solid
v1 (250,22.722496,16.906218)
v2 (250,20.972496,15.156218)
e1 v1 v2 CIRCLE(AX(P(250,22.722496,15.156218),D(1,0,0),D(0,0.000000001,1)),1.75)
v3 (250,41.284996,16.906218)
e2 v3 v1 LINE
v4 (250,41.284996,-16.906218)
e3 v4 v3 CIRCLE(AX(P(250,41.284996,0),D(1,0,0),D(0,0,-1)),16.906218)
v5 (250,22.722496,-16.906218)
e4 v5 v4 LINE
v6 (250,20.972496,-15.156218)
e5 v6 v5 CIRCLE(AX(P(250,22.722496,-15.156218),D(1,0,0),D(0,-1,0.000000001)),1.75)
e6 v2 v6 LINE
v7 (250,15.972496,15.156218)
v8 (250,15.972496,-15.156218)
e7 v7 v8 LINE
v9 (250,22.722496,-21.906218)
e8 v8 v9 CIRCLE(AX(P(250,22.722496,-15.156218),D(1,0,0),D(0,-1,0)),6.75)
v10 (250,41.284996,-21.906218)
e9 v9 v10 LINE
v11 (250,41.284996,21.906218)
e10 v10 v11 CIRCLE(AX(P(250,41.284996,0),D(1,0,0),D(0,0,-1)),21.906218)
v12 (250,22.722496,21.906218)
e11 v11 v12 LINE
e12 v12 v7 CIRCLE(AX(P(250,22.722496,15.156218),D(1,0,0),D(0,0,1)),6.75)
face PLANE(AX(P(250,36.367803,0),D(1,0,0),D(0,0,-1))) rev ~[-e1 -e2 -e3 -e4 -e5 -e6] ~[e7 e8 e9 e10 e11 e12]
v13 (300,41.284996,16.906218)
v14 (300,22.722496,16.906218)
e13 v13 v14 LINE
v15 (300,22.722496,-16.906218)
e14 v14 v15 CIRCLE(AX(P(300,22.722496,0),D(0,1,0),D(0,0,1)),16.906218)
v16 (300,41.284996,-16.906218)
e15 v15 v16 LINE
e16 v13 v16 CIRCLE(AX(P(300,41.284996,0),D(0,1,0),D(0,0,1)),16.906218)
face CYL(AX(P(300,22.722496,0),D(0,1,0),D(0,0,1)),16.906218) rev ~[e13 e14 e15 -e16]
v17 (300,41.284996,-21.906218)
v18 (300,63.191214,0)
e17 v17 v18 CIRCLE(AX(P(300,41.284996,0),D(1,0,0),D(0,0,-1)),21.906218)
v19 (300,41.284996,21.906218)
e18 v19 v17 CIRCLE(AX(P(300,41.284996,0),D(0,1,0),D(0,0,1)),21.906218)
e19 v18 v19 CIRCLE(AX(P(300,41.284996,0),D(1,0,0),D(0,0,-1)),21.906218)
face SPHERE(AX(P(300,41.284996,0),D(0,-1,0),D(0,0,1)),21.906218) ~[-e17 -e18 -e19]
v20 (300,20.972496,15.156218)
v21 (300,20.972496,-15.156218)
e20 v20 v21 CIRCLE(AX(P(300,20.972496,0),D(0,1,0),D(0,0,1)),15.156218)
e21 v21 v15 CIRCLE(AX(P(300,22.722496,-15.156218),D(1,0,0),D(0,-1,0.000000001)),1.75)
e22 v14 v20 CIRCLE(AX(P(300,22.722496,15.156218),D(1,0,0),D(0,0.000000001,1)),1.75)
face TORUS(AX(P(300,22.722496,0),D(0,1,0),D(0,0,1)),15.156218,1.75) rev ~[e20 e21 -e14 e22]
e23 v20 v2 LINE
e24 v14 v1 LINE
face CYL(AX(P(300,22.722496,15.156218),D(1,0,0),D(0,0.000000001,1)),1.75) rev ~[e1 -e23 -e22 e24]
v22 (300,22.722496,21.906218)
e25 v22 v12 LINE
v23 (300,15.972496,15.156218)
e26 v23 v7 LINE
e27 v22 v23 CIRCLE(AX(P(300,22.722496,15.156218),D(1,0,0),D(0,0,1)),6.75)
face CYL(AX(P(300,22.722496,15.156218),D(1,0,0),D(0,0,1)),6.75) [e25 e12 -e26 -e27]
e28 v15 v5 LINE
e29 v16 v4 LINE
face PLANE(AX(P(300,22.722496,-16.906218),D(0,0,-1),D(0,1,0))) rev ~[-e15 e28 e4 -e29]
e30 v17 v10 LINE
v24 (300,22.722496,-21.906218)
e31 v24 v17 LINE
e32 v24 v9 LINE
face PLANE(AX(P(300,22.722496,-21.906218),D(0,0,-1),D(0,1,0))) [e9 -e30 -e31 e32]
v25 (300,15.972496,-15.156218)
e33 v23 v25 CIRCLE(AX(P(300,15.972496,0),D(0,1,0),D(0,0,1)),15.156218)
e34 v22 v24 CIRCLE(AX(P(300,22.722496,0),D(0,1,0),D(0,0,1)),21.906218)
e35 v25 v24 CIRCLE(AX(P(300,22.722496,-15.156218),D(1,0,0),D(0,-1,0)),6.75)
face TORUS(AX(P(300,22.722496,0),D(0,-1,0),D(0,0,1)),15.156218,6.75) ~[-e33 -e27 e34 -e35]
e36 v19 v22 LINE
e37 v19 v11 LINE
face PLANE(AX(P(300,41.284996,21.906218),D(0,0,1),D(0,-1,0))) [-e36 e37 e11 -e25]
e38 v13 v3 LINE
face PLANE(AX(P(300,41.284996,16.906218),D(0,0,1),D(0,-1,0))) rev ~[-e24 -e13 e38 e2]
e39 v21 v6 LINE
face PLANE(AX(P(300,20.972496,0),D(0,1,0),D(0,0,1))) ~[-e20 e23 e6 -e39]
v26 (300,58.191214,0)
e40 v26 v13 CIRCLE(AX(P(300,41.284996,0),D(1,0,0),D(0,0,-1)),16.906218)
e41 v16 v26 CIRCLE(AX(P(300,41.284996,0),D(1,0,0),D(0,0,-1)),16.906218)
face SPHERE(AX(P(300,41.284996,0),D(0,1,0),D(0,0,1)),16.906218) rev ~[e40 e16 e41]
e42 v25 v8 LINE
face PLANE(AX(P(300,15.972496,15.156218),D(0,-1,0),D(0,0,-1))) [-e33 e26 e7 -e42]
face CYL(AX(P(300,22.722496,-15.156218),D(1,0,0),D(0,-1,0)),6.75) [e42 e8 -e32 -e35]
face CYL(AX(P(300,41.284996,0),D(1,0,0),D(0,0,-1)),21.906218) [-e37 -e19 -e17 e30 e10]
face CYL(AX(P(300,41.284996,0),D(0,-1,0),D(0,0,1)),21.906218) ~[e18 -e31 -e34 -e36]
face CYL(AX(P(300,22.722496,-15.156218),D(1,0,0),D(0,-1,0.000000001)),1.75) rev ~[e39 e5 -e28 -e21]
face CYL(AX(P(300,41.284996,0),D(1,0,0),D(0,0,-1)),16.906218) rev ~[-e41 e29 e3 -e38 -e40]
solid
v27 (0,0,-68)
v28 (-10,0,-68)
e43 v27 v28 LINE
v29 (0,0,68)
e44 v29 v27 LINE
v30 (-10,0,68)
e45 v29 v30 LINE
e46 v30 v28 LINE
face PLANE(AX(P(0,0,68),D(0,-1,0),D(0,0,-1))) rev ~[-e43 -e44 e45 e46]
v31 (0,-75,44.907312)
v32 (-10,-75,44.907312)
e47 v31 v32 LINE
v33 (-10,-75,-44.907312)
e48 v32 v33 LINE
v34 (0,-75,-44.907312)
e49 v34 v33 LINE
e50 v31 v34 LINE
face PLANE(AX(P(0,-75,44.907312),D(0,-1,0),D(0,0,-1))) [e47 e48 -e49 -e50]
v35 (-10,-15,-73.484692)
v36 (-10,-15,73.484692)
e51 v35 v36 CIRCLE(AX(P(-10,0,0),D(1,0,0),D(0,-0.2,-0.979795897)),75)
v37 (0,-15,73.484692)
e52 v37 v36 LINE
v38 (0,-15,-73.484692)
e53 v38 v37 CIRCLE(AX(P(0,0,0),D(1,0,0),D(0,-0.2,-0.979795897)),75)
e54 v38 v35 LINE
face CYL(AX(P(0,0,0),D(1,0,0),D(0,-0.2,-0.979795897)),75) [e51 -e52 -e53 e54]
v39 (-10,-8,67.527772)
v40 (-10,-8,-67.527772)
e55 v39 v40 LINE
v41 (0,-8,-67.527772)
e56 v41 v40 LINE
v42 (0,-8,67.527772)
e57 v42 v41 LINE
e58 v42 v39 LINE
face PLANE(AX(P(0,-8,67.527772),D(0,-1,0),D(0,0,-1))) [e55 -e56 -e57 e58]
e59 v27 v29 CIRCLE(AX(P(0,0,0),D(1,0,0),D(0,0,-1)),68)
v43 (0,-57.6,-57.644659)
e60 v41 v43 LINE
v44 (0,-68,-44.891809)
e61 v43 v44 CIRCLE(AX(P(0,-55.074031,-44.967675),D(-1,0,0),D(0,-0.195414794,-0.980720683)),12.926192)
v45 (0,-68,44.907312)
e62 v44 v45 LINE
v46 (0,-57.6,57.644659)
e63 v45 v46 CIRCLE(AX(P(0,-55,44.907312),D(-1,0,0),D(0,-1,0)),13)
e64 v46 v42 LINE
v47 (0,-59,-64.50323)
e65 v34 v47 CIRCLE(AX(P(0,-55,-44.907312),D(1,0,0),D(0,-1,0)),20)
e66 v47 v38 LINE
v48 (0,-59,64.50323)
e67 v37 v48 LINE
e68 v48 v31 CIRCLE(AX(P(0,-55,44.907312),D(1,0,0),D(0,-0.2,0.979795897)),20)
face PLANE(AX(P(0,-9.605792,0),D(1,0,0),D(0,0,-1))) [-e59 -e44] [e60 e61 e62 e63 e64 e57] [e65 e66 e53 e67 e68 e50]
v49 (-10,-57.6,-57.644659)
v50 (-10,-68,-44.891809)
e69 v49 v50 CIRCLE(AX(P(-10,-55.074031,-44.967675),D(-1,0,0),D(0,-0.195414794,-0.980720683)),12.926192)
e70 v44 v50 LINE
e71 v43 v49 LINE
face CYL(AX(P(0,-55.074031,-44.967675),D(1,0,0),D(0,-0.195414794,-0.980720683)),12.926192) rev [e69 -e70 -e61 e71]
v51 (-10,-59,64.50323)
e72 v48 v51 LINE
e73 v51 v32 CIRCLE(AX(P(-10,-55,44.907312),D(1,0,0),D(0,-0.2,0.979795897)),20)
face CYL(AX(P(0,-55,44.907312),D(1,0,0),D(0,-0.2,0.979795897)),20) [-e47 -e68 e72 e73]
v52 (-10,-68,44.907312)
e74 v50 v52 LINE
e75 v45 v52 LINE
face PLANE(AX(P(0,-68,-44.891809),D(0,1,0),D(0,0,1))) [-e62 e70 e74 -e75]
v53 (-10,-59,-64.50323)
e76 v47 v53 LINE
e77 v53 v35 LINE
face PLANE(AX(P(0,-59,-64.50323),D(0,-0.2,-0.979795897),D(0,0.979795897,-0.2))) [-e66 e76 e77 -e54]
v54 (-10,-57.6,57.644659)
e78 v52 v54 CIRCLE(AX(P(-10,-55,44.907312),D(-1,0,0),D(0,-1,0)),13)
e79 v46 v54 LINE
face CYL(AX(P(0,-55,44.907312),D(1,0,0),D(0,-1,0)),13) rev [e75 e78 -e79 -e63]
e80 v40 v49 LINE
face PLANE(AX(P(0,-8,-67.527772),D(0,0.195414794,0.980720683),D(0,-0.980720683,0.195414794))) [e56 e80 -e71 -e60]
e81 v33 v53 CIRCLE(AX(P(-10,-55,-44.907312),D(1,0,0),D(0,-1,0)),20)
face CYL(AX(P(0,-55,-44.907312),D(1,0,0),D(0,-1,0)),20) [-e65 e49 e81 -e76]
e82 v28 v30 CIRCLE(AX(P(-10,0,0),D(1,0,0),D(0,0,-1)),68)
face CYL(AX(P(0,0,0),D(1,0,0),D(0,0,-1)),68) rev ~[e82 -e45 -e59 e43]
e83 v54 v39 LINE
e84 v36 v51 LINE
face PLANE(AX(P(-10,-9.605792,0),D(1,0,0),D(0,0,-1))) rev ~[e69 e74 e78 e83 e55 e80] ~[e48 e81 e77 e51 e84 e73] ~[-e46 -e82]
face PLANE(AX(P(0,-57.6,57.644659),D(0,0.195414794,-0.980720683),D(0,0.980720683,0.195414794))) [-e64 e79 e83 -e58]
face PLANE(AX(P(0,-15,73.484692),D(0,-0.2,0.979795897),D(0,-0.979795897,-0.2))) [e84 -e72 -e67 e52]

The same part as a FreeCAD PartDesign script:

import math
import FreeCAD as App
import Part
import Sketcher

doc = App.newDocument("Part")
body = doc.addObject("PartDesign::Body", "Body")

sketch1 = doc.addObject("Sketcher::SketchObject", "Sketch")
body.addObject(sketch1)
sketch1.AttachmentSupport = (doc.YZ_Plane, [""])
sketch1.MapMode = "FlatFace"
sketch1.addGeometry(Part.LineSegment(App.Vector(-15, 73, 0), App.Vector(-59, 65, 0)), False)
sketch1.addGeometry(Part.ArcOfCircle(Part.Circle(App.Vector(-55, 45, 0), App.Vector(0, 0, 1), 20), math.radians(102), math.radians(180)), False)
sketch1.addGeometry(Part.LineSegment(App.Vector(-75, 45, 0), App.Vector(-75, -45, 0)), False)
sketch1.addGeometry(Part.ArcOfCircle(Part.Circle(App.Vector(-55, -45, 0), App.Vector(0, 0, 1), 20), math.radians(180), math.radians(258)), False)
sketch1.addGeometry(Part.LineSegment(App.Vector(-59, -65, 0), App.Vector(-15, -73, 0)), False)
sketch1.addGeometry(Part.ArcOfCircle(Part.Circle(App.Vector(0, 0, 0), App.Vector(0, 0, 1), 75), math.radians(-102), math.radians(102)), False)
sketch1.addGeometry(Part.LineSegment(App.Vector(-58, 58, 0), App.Vector(-8, 68, 0)), False)
sketch1.addGeometry(Part.LineSegment(App.Vector(-8, 68, 0), App.Vector(-8, -68, 0)), False)
sketch1.addGeometry(Part.LineSegment(App.Vector(-8, -68, 0), App.Vector(-58, -58, 0)), False)
sketch1.addGeometry(Part.ArcOfCircle(Part.Circle(App.Vector(-55, -45, 0), App.Vector(0, 0, 1), 13), math.radians(180), math.radians(259)), False)
sketch1.addGeometry(Part.LineSegment(App.Vector(-68, -45, 0), App.Vector(-68, 45, 0)), False)
sketch1.addGeometry(Part.ArcOfCircle(Part.Circle(App.Vector(-55, 45, 0), App.Vector(0, 0, 1), 13), math.radians(102), math.radians(180)), False)
sketch1.addGeometry(Part.LineSegment(App.Vector(0, -68, 0), App.Vector(0, 68, 0)), False)
sketch1.addGeometry(Part.ArcOfCircle(Part.Circle(App.Vector(0, 0, 0), App.Vector(0, 0, 1), 68), math.radians(-90), math.radians(90)), False)
sketch1.addConstraint(Sketcher.Constraint("Tangent", 0, 2, 1, 1))
sketch1.addConstraint(Sketcher.Constraint("Tangent", 1, 2, 2, 1))
sketch1.addConstraint(Sketcher.Constraint("Tangent", 2, 2, 3, 1))
sketch1.addConstraint(Sketcher.Constraint("Tangent", 3, 2, 4, 1))
sketch1.addConstraint(Sketcher.Constraint("Tangent", 4, 2, 5, 1))
sketch1.addConstraint(Sketcher.Constraint("Tangent", 5, 2, 0, 1))
sketch1.addConstraint(Sketcher.Constraint("Coincident", 6, 2, 7, 1))
sketch1.addConstraint(Sketcher.Constraint("Coincident", 7, 2, 8, 1))
sketch1.addConstraint(Sketcher.Constraint("Tangent", 8, 2, 9, 2))
sketch1.addConstraint(Sketcher.Constraint("Coincident", 9, 1, 10, 1))
sketch1.addConstraint(Sketcher.Constraint("Tangent", 10, 2, 11, 2))
sketch1.addConstraint(Sketcher.Constraint("Coincident", 11, 1, 6, 1))
sketch1.addConstraint(Sketcher.Constraint("Coincident", 12, 1, 13, 1))
sketch1.addConstraint(Sketcher.Constraint("Coincident", 13, 2, 12, 2))
sketch1.addConstraint(Sketcher.Constraint("Vertical", 2))
sketch1.addConstraint(Sketcher.Constraint("Vertical", 7))
sketch1.addConstraint(Sketcher.Constraint("Vertical", 10))
sketch1.addConstraint(Sketcher.Constraint("Vertical", 12))
sketch1.addConstraint(Sketcher.Constraint("Coincident", 5, 3, -1, 1))
sketch1.addConstraint(Sketcher.Constraint("Coincident", 13, 3, -1, 1))
sketch1.addConstraint(Sketcher.Constraint("Coincident", 11, 3, 1, 3))
sketch1.addConstraint(Sketcher.Constraint("Equal", 1, 3))
sketch1.addConstraint(Sketcher.Constraint("Symmetric", 8, 2, 11, 1, -1))
sketch1.addConstraint(Sketcher.Constraint("PointOnObject", 12, 1, -2))
sketch1.addConstraint(Sketcher.Constraint("Vertical", 0, 2, 3, 2))
sketch1.addConstraint(Sketcher.Constraint("Equal", 6, 8))
sketch1.addConstraint(Sketcher.Constraint("Radius", 1, 20.0))
sketch1.addConstraint(Sketcher.Constraint("Radius", 5, 75.0))
sketch1.addConstraint(Sketcher.Constraint("Radius", 11, 13.0))
sketch1.addConstraint(Sketcher.Constraint("Radius", 13, 68.0))
sketch1.addConstraint(Sketcher.Constraint("DistanceX", 1, 3, -1, 1, 55.0))
sketch1.addConstraint(Sketcher.Constraint("DistanceX", 0, 2, -1, 1, 59.0))
sketch1.addConstraint(Sketcher.Constraint("DistanceX", 6, 2, -1, 1, 8.0))
sketch1.addConstraint(Sketcher.Constraint("DistanceX", 8, 2, -1, 1, 57.6))
sketch1.addConstraint(Sketcher.Constraint("Radius", 9, 12.926192))
sketch1.addConstraint(Sketcher.Constraint("DistanceY", 10, 1, 10, 2, 89.799121))
pad1 = doc.addObject("PartDesign::Pad", "Pad")
body.addObject(pad1)
pad1.Profile = sketch1
pad1.Length = 10
pad1.Reversed = True
body2 = doc.addObject("PartDesign::Body", "Body001")

sketch2 = doc.addObject("Sketcher::SketchObject", "Sketch001")
body2.addObject(sketch2)
sketch2.AttachmentSupport = (doc.getObject("YZ_Plane001"), [""])
sketch2.MapMode = "FlatFace"
sketch2.AttachmentOffset = App.Placement(App.Vector(0, 0, 300), App.Rotation())
sketch2.addGeometry(Part.LineSegment(App.Vector(41.3, 21.9, 0), App.Vector(22.7, 21.9, 0)), False)
sketch2.addGeometry(Part.ArcOfCircle(Part.Circle(App.Vector(22.7, 15.2, 0), App.Vector(0, 0, 1), 6.8), math.radians(90), math.radians(180)), False)
sketch2.addGeometry(Part.LineSegment(App.Vector(16, 15.2, 0), App.Vector(16, -15.2, 0)), False)
sketch2.addGeometry(Part.ArcOfCircle(Part.Circle(App.Vector(22.7, -15.2, 0), App.Vector(0, 0, 1), 6.8), math.radians(180), math.radians(270)), False)
sketch2.addGeometry(Part.LineSegment(App.Vector(22.7, -21.9, 0), App.Vector(41.3, -21.9, 0)), False)
sketch2.addGeometry(Part.ArcOfCircle(Part.Circle(App.Vector(41.3, 0, 0), App.Vector(0, 0, 1), 21.9), math.radians(-90), math.radians(90)), False)
sketch2.addGeometry(Part.LineSegment(App.Vector(41.3, -16.9, 0), App.Vector(22.7, -16.9, 0)), False)
sketch2.addGeometry(Part.ArcOfCircle(Part.Circle(App.Vector(22.7, -15.2, 0), App.Vector(0, 0, 1), 1.7), math.radians(180), math.radians(270)), False)
sketch2.addGeometry(Part.LineSegment(App.Vector(21, -15.2, 0), App.Vector(21, 15.2, 0)), False)
sketch2.addGeometry(Part.ArcOfCircle(Part.Circle(App.Vector(22.7, 15.2, 0), App.Vector(0, 0, 1), 1.7), math.radians(90), math.radians(180)), False)
sketch2.addGeometry(Part.LineSegment(App.Vector(22.7, 16.9, 0), App.Vector(41.3, 16.9, 0)), False)
sketch2.addGeometry(Part.ArcOfCircle(Part.Circle(App.Vector(41.3, 0, 0), App.Vector(0, 0, 1), 16.9), math.radians(-90), math.radians(90)), False)
sketch2.addConstraint(Sketcher.Constraint("Tangent", 0, 2, 1, 1))
sketch2.addConstraint(Sketcher.Constraint("Tangent", 1, 2, 2, 1))
sketch2.addConstraint(Sketcher.Constraint("Tangent", 2, 2, 3, 1))
sketch2.addConstraint(Sketcher.Constraint("Tangent", 3, 2, 4, 1))
sketch2.addConstraint(Sketcher.Constraint("Tangent", 4, 2, 5, 1))
sketch2.addConstraint(Sketcher.Constraint("Tangent", 5, 2, 0, 1))
sketch2.addConstraint(Sketcher.Constraint("Tangent", 6, 2, 7, 2))
sketch2.addConstraint(Sketcher.Constraint("Tangent", 7, 1, 8, 1))
sketch2.addConstraint(Sketcher.Constraint("Tangent", 8, 2, 9, 2))
sketch2.addConstraint(Sketcher.Constraint("Tangent", 9, 1, 10, 1))
sketch2.addConstraint(Sketcher.Constraint("Tangent", 10, 2, 11, 2))
sketch2.addConstraint(Sketcher.Constraint("Tangent", 11, 1, 6, 1))
sketch2.addConstraint(Sketcher.Constraint("Horizontal", 0))
sketch2.addConstraint(Sketcher.Constraint("Vertical", 2))
sketch2.addConstraint(Sketcher.Constraint("Horizontal", 4))
sketch2.addConstraint(Sketcher.Constraint("Horizontal", 6))
sketch2.addConstraint(Sketcher.Constraint("Vertical", 8))
sketch2.addConstraint(Sketcher.Constraint("Horizontal", 10))
sketch2.addConstraint(Sketcher.Constraint("Coincident", 7, 3, 3, 3))
sketch2.addConstraint(Sketcher.Constraint("Coincident", 9, 3, 1, 3))
sketch2.addConstraint(Sketcher.Constraint("Equal", 1, 3))
sketch2.addConstraint(Sketcher.Constraint("PointOnObject", 5, 3, -1))
sketch2.addConstraint(Sketcher.Constraint("Vertical", 11, 3, 4, 2))
sketch2.addConstraint(Sketcher.Constraint("Radius", 1, 6.75))
sketch2.addConstraint(Sketcher.Constraint("Radius", 7, 1.75))
sketch2.addConstraint(Sketcher.Constraint("DistanceX", 0, 2, 0, 1, 18.5625))
sketch2.addConstraint(Sketcher.Constraint("Radius", 5, 21.906218))
sketch2.addConstraint(Sketcher.Constraint("DistanceX", -1, 1, 1, 3, 22.722496))
pad2 = doc.addObject("PartDesign::Pad", "Pad001")
body2.addObject(pad2)
pad2.Profile = sketch2
pad2.Length = 50
pad2.Reversed = True

sketch3 = doc.addObject("Sketcher::SketchObject", "Sketch002")
body2.addObject(sketch3)
sketch3.AttachmentSupport = (doc.getObject("YZ_Plane001"), [""])
sketch3.MapMode = "FlatFace"
sketch3.AttachmentOffset = App.Placement(App.Vector(0, 0, 300), App.Rotation())
sketch3.addGeometry(Part.LineSegment(App.Vector(21, 0, 0), App.Vector(21, 15.2, 0)), False)
sketch3.addGeometry(Part.ArcOfCircle(Part.Circle(App.Vector(22.7, 15.2, 0), App.Vector(0, 0, 1), 1.7), math.radians(90), math.radians(180)), False)
sketch3.addGeometry(Part.LineSegment(App.Vector(22.7, 16.9, 0), App.Vector(41.3, 16.9, 0)), False)
sketch3.addGeometry(Part.ArcOfCircle(Part.Circle(App.Vector(41.3, 0, 0), App.Vector(0, 0, 1), 16.9), math.radians(0), math.radians(90)), False)
sketch3.addGeometry(Part.LineSegment(App.Vector(58.2, 0, 0), App.Vector(63.2, 0, 0)), False)
sketch3.addGeometry(Part.ArcOfCircle(Part.Circle(App.Vector(41.3, 0, 0), App.Vector(0, 0, 1), 21.9), math.radians(0), math.radians(90)), False)
sketch3.addGeometry(Part.LineSegment(App.Vector(41.3, 21.9, 0), App.Vector(22.7, 21.9, 0)), False)
sketch3.addGeometry(Part.ArcOfCircle(Part.Circle(App.Vector(22.7, 15.2, 0), App.Vector(0, 0, 1), 6.8), math.radians(90), math.radians(180)), False)
sketch3.addGeometry(Part.LineSegment(App.Vector(16, 15.2, 0), App.Vector(16, 0, 0)), False)
sketch3.addGeometry(Part.LineSegment(App.Vector(16, 0, 0), App.Vector(21, 0, 0)), False)
sketch3.addConstraint(Sketcher.Constraint("Tangent", 0, 2, 1, 2))
sketch3.addConstraint(Sketcher.Constraint("Tangent", 1, 1, 2, 1))
sketch3.addConstraint(Sketcher.Constraint("Tangent", 2, 2, 3, 2))
sketch3.addConstraint(Sketcher.Constraint("Coincident", 3, 1, 4, 1))
sketch3.addConstraint(Sketcher.Constraint("Coincident", 4, 2, 5, 1))
sketch3.addConstraint(Sketcher.Constraint("Tangent", 5, 2, 6, 1))
sketch3.addConstraint(Sketcher.Constraint("Tangent", 6, 2, 7, 1))
sketch3.addConstraint(Sketcher.Constraint("Tangent", 7, 2, 8, 1))
sketch3.addConstraint(Sketcher.Constraint("Coincident", 8, 2, 9, 1))
sketch3.addConstraint(Sketcher.Constraint("Coincident", 9, 2, 0, 1))
sketch3.addConstraint(Sketcher.Constraint("Vertical", 0))
sketch3.addConstraint(Sketcher.Constraint("Horizontal", 2))
sketch3.addConstraint(Sketcher.Constraint("Horizontal", 4))
sketch3.addConstraint(Sketcher.Constraint("Horizontal", 6))
sketch3.addConstraint(Sketcher.Constraint("Vertical", 8))
sketch3.addConstraint(Sketcher.Constraint("Horizontal", 9))
sketch3.addConstraint(Sketcher.Constraint("Coincident", 5, 3, 3, 3))
sketch3.addConstraint(Sketcher.Constraint("Coincident", 7, 3, 1, 3))
sketch3.addConstraint(Sketcher.Constraint("PointOnObject", 3, 3, -1))
sketch3.addConstraint(Sketcher.Constraint("PointOnObject", 3, 1, -1))
sketch3.addConstraint(Sketcher.Constraint("PointOnObject", 8, 2, -1))
sketch3.addConstraint(Sketcher.Constraint("DistanceX", 4, 1, 4, 2, 5.0))
sketch3.addConstraint(Sketcher.Constraint("Radius", 1, 1.75))
sketch3.addConstraint(Sketcher.Constraint("DistanceX", 2, 1, 2, 2, 18.5625))
sketch3.addConstraint(Sketcher.Constraint("Radius", 3, 16.906218))
sketch3.addConstraint(Sketcher.Constraint("DistanceX", -1, 1, 1, 3, 22.722496))
revolution = doc.addObject("PartDesign::Revolution", "Revolution")
body2.addObject(revolution)
revolution.Profile = sketch3
revolution.ReferenceAxis = (sketch3, ["H_Axis"])
revolution.Angle = 180

doc.recompute()
